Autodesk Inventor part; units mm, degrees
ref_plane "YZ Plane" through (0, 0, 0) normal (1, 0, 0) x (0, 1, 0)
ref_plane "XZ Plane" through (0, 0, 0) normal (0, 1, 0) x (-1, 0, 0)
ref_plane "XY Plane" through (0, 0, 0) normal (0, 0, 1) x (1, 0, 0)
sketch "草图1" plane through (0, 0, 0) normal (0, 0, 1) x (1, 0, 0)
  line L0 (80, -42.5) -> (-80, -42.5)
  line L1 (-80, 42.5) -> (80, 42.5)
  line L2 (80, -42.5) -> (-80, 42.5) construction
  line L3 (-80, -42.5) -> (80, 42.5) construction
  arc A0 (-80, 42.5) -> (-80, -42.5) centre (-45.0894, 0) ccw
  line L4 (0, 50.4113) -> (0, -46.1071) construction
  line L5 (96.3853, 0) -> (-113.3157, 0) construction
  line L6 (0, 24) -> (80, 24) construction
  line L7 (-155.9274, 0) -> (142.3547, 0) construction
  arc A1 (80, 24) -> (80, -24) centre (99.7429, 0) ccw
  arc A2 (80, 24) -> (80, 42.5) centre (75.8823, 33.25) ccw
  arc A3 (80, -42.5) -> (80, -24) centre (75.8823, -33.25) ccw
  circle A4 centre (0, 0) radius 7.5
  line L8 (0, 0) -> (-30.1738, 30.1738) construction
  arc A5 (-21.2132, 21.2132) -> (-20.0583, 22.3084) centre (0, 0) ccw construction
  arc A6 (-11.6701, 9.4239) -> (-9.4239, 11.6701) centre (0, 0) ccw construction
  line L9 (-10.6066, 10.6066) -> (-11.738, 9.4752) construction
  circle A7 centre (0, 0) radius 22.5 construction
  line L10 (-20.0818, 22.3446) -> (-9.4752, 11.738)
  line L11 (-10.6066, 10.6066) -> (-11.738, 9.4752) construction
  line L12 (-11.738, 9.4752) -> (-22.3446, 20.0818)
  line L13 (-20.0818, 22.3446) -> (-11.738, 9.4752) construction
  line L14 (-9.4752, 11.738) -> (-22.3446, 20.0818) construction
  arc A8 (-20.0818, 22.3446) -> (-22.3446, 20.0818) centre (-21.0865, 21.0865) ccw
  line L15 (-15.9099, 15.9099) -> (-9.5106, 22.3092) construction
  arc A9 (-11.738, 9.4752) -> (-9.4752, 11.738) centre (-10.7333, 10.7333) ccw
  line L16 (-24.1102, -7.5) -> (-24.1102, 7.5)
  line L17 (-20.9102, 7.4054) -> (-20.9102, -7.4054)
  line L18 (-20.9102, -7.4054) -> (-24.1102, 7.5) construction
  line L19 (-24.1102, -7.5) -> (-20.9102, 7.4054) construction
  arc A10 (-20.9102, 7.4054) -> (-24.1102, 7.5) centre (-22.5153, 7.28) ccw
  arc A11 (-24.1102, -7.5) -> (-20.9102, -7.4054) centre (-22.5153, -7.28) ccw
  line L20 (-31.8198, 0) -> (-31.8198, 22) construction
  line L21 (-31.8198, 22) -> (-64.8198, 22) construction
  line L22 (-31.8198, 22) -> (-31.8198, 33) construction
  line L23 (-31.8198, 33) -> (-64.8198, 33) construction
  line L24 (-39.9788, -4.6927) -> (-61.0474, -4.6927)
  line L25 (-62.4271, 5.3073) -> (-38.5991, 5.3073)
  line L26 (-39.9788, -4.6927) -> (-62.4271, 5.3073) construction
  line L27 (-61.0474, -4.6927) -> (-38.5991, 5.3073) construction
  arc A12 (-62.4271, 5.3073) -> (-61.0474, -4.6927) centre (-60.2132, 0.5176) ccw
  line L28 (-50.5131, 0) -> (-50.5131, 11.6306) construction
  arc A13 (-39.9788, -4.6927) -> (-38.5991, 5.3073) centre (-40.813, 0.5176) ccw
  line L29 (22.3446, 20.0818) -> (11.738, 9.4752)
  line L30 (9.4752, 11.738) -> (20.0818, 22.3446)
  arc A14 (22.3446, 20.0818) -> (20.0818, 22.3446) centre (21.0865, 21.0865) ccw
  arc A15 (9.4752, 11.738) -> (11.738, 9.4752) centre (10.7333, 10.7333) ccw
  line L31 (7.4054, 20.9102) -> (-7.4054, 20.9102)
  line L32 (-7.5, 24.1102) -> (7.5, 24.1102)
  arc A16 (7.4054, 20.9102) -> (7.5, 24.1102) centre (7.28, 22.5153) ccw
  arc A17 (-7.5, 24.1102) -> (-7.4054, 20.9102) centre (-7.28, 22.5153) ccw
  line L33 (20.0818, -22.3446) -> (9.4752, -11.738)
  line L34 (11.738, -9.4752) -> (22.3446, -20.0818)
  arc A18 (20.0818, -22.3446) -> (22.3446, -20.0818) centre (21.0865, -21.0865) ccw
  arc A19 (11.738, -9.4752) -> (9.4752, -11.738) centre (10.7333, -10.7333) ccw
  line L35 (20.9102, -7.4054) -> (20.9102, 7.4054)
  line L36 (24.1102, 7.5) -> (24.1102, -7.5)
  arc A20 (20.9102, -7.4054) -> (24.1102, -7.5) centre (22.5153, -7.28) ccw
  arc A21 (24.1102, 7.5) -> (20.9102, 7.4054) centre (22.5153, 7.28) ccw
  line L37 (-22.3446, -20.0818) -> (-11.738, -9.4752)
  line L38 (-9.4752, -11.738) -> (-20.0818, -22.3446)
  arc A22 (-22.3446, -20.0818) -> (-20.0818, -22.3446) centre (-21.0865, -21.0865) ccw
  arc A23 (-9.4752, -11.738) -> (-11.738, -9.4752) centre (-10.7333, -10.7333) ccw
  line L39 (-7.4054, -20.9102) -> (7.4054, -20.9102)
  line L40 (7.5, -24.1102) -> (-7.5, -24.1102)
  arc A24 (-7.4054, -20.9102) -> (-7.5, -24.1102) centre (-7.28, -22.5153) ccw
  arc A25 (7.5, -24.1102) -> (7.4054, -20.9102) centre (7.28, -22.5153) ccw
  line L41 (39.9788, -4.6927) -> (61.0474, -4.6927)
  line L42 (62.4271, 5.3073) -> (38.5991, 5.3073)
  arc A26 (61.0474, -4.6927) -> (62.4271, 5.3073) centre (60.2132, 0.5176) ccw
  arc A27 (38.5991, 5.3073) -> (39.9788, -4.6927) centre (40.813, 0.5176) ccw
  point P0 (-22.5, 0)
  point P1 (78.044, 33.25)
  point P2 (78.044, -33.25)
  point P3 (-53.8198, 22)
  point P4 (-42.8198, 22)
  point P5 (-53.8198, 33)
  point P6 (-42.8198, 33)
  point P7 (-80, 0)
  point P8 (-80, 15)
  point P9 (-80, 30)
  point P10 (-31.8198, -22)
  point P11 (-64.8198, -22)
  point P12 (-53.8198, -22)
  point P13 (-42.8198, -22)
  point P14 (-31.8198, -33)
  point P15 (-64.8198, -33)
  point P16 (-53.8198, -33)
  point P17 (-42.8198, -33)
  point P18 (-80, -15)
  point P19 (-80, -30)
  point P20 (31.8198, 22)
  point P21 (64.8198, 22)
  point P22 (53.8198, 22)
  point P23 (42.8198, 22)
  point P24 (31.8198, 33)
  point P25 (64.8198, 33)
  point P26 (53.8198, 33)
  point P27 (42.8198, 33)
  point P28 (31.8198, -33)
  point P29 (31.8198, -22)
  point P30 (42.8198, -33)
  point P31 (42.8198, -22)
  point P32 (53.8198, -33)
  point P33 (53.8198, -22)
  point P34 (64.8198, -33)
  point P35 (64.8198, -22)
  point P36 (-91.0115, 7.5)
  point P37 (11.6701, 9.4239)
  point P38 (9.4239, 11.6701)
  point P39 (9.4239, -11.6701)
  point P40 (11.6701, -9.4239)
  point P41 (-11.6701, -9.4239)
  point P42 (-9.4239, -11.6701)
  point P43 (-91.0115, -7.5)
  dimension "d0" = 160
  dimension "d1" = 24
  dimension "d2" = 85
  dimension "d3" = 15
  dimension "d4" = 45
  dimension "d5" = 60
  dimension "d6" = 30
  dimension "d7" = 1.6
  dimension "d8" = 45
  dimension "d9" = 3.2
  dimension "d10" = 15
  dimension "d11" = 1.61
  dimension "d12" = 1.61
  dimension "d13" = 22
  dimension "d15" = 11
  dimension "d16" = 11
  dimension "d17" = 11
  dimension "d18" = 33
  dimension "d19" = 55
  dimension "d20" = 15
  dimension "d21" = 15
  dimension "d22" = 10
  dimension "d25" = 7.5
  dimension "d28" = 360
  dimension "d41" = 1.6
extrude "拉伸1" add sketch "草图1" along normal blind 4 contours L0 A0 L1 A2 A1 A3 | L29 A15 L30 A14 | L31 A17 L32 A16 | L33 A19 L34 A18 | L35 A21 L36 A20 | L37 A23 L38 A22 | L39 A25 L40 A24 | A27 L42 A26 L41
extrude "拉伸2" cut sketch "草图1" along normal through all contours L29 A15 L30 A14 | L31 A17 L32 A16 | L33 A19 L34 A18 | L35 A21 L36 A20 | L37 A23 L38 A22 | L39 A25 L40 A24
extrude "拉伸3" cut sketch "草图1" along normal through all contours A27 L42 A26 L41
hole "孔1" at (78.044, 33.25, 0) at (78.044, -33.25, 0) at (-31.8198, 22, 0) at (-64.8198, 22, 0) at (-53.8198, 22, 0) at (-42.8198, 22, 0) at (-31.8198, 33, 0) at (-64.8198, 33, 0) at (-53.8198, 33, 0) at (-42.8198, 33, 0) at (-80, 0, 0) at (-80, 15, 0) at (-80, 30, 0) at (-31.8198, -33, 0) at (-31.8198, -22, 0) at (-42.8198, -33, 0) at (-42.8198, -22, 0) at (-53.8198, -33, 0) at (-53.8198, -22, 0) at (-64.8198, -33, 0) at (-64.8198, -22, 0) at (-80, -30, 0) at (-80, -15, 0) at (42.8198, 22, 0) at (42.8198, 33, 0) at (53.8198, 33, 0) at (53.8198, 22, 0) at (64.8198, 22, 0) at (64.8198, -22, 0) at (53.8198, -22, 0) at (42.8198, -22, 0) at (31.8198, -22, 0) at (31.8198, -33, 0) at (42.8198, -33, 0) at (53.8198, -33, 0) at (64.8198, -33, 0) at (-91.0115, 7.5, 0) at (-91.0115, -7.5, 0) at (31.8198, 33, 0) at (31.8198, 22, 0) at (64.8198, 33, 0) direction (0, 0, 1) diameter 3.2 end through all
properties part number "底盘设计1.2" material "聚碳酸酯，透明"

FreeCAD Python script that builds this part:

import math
import FreeCAD as App
import Part
import Sketcher

V = App.Vector
Q = App.Units.Quantity

doc = App.newDocument("Part")
params = doc.addObject("Spreadsheet::Sheet", "Params")
for row, (alias, value) in enumerate([
    ("sketch1_diameter", "15 mm"),
    ("sketch1_radius", "55 mm"),
    ("sketch1_width", "160 mm"),
    ("sketch1_height", "15 mm"),
    ("sketch1_radius2", "1.61 mm"),
    ("pad1_length", "4 mm"),
    ("sketch2_width", "15 mm"),
    ("sketch2_radius", "1.61 mm"),
    ("sketch2_length", "15 mm"),
    ("sketch4_diameter", "3.2 mm"),
    ("hole_diameter", "3.2 mm"),
], start=1):
    params.set(f"A{row}", alias)
    params.set(f"B{row}", "=" + value)
    params.setAlias(f"B{row}", alias)

body = doc.addObject("PartDesign::Body", "Body")

# Sketch on XY plane
sketch1 = body.newObject("Sketcher::SketchObject", "Sketch")
sketch1.AttachmentSupport = (doc.getObject("XY_Plane"), [""])
sketch1.MapMode = "FlatFace"
sketch1.addGeometry(Part.LineSegment(V(-80, -42.5, 0), V(80, -42.5, 0)), False)
sketch1.addGeometry(Part.ArcOfCircle(Part.Circle(V(75.9, -33.2, 0), V(0, 0, 1), 10.1), math.radians(-66), math.radians(66)), False)
sketch1.addGeometry(Part.ArcOfCircle(Part.Circle(V(99.7, 0, 0), V(0, 0, 1), 31.1), math.radians(129), math.radians(231)), False)
sketch1.addGeometry(Part.ArcOfCircle(Part.Circle(V(75.9, 33.2, 0), V(0, 0, 1), 10.1), math.radians(-66), math.radians(66)), False)
sketch1.addGeometry(Part.LineSegment(V(80, 42.5, 0), V(-80, 42.5, 0)), False)
sketch1.addGeometry(Part.ArcOfCircle(Part.Circle(V(-45.1, 0, 0), V(0, 0, 1), 55), math.radians(129), math.radians(231)), False)
sketch1.addGeometry(Part.ArcOfCircle(Part.Circle(V(-22.5, -7.3, 0), V(0, 0, 1), 1.6), math.radians(-172), math.radians(-4)), False)
sketch1.addGeometry(Part.LineSegment(V(-24.1, -7.5, 0), V(-24.1, 7.5, 0)), False)
sketch1.addGeometry(Part.ArcOfCircle(Part.Circle(V(-22.5, 7.3, 0), V(0, 0, 1), 1.6), math.radians(4), math.radians(172)), False)
sketch1.addGeometry(Part.LineSegment(V(-20.9, 7.4, 0), V(-20.9, -7.4, 0)), False)
sketch1.addGeometry(Part.ArcOfCircle(Part.Circle(V(-40.8, 0.5, 0), V(0, 0, 1), 5.3), math.radians(-81), math.radians(65)), False)
sketch1.addGeometry(Part.LineSegment(V(-40, -4.7, 0), V(-61, -4.7, 0)), False)
sketch1.addGeometry(Part.ArcOfCircle(Part.Circle(V(-60.2, 0.5, 0), V(0, 0, 1), 5.3), math.radians(115), math.radians(261)), False)
sketch1.addGeometry(Part.LineSegment(V(-62.4, 5.3, 0), V(-38.6, 5.3, 0)), False)
sketch1.addGeometry(Part.ArcOfCircle(Part.Circle(V(-21.1, 21.1, 0), V(0, 0, 1), 1.6), math.radians(51), math.radians(219)), False)
sketch1.addGeometry(Part.LineSegment(V(-20.1, 22.3, 0), V(-9.5, 11.7, 0)), False)
sketch1.addGeometry(Part.ArcOfCircle(Part.Circle(V(-10.7, 10.7, 0), V(0, 0, 1), 1.6), math.radians(-129), math.radians(39)), False)
sketch1.addGeometry(Part.LineSegment(V(-11.7, 9.5, 0), V(-22.3, 20.1, 0)), False)
sketch1.addGeometry(Part.Circle(V(0, 0, 0), V(0, 0, 1), 7.5), False)
sketch1.addConstraint(Sketcher.Constraint("Coincident", 0, 2, 1, 1))
sketch1.addConstraint(Sketcher.Constraint("Coincident", 1, 2, 2, 2))
sketch1.addConstraint(Sketcher.Constraint("Coincident", 2, 1, 3, 1))
sketch1.addConstraint(Sketcher.Constraint("Coincident", 3, 2, 4, 1))
sketch1.addConstraint(Sketcher.Constraint("Coincident", 4, 2, 5, 1))
sketch1.addConstraint(Sketcher.Constraint("Coincident", 5, 2, 0, 1))
sketch1.addConstraint(Sketcher.Constraint("Coincident", 6, 1, 7, 1))
sketch1.addConstraint(Sketcher.Constraint("Coincident", 7, 2, 8, 2))
sketch1.addConstraint(Sketcher.Constraint("Coincident", 8, 1, 9, 1))
sketch1.addConstraint(Sketcher.Constraint("Coincident", 9, 2, 6, 2))
sketch1.addConstraint(Sketcher.Constraint("Coincident", 10, 1, 11, 1))
sketch1.addConstraint(Sketcher.Constraint("Coincident", 11, 2, 12, 2))
sketch1.addConstraint(Sketcher.Constraint("Coincident", 12, 1, 13, 1))
sketch1.addConstraint(Sketcher.Constraint("Coincident", 13, 2, 10, 2))
sketch1.addConstraint(Sketcher.Constraint("Coincident", 14, 1, 15, 1))
sketch1.addConstraint(Sketcher.Constraint("Coincident", 15, 2, 16, 2))
sketch1.addConstraint(Sketcher.Constraint("Coincident", 16, 1, 17, 1))
sketch1.addConstraint(Sketcher.Constraint("Coincident", 17, 2, 14, 2))
sketch1.addConstraint(Sketcher.Constraint("Horizontal", 0))
sketch1.addConstraint(Sketcher.Constraint("Horizontal", 4))
sketch1.addConstraint(Sketcher.Constraint("Vertical", 7))
sketch1.addConstraint(Sketcher.Constraint("Vertical", 9))
sketch1.addConstraint(Sketcher.Constraint("Horizontal", 11))
sketch1.addConstraint(Sketcher.Constraint("Horizontal", 13))
sketch1.addConstraint(Sketcher.Constraint("Coincident", 18, 3, -1, 1))
sketch1.addConstraint(Sketcher.Constraint("Equal", 1, 3))
sketch1.addConstraint(Sketcher.Constraint("Equal", 6, 8))
sketch1.addConstraint(Sketcher.Constraint("Equal", 10, 12))
sketch1.addConstraint(Sketcher.Constraint("Equal", 8, 14))
sketch1.addConstraint(Sketcher.Constraint("Equal", 14, 16))
sketch1.addConstraint(Sketcher.Constraint("Symmetric", 0, 2, 4, 2, -1, 1))
sketch1.addConstraint(Sketcher.Constraint("Symmetric", 1, 3, 3, 3, -1))
sketch1.addConstraint(Sketcher.Constraint("Symmetric", 6, 3, 8, 3, -1))
sketch1.addConstraint(Sketcher.Constraint("PointOnObject", 2, 3, -1))
sketch1.addConstraint(Sketcher.Constraint("PointOnObject", 5, 3, -1))
sketch1.addConstraint(Sketcher.Constraint("Parallel", 15, 17))
sketch1.addConstraint(Sketcher.Constraint("Horizontal", 10, 3, 12, 3))
sketch1.addConstraint(Sketcher.Constraint("Vertical", 0, 2, 1, 2))
sketch1.addConstraint(Sketcher.Constraint("Equal", 15, 17))
sketch1.addConstraint(Sketcher.Constraint("Diameter", 18, Q("15 mm")))
sketch1.addConstraint(Sketcher.Constraint("Radius", 5, Q("55 mm")))
sketch1.addConstraint(Sketcher.Constraint("DistanceX", 0, 1, 0, 2, Q("160 mm")))
sketch1.addConstraint(Sketcher.Constraint("DistanceY", 7, 1, 7, 2, Q("15 mm")))
sketch1.addConstraint(Sketcher.Constraint("Angle", 15, Q("-45 deg")))
sketch1.addConstraint(Sketcher.Constraint("Radius", 6, Q("1.61 mm")))
sketch1.addConstraint(Sketcher.Constraint("Distance", 15, Q("15 mm")))
sketch1.addConstraint(Sketcher.Constraint("DistanceY", 1, 2, -1, 1, Q("24 mm")))
sketch1.addConstraint(Sketcher.Constraint("DistanceY", 11, 2, 12, 1, Q("10 mm")))
sketch1.addConstraint(Sketcher.Constraint("DistanceX", 7, 2, 8, 1, Q("3.2 mm")))
sketch1.addConstraint(Sketcher.Constraint("Radius", 1, Q("10.125 mm")))
sketch1.addConstraint(Sketcher.Constraint("Radius", 2, Q("31.077 mm")))
sketch1.addConstraint(Sketcher.Constraint("DistanceY", 0, 2, -1, 1, Q("42.5 mm")))
sketch1.addConstraint(Sketcher.Constraint("Radius", 10, Q("5.2767 mm")))
sketch1.addConstraint(Sketcher.Constraint("DistanceX", 13, 1, 13, 2, Q("23.828 mm")))
sketch1.addConstraint(Sketcher.Constraint("DistanceY", 6, 3, -1, 1, Q("7.28 mm")))
sketch1.addConstraint(Sketcher.Constraint("DistanceX", 8, 3, 15, 2, Q("13.04 mm")))
sketch1.addConstraint(Sketcher.Constraint("DistanceX", 11, 2, 11, 1, Q("21.0686 mm")))
sketch1.addConstraint(Sketcher.Constraint("DistanceX", 10, 3, -1, 1, Q("40.813 mm")))
sketch1.addConstraint(Sketcher.Constraint("DistanceY", -1, 1, 15, 2, Q("11.738 mm")))
sketch1.addConstraint(Sketcher.Constraint("DistanceX", 16, 1, -1, 1, Q("11.738 mm")))
sketch1.addConstraint(Sketcher.Constraint("DistanceX", 5, 3, 6, 3, Q("22.574 mm")))
sketch1.addConstraint(Sketcher.Constraint("DistanceY", 10, 3, 14, 3, Q("20.569 mm")))
sketch1.addConstraint(Sketcher.Constraint("DistanceX", 5, 3, 14, 3, Q("24.003 mm")))
sketch1.setExpression("Constraints[39]", "Params.sketch1_diameter")
sketch1.setExpression("Constraints[40]", "Params.sketch1_radius")
sketch1.setExpression("Constraints[41]", "Params.sketch1_width")
sketch1.setExpression("Constraints[42]", "Params.sketch1_height")
sketch1.setExpression("Constraints[44]", "Params.sketch1_radius2")
pad1 = body.newObject("PartDesign::Pad", "Pad")
pad1.Profile = sketch1
pad1.setExpression("Length", "Params.pad1_length")

# Sketch on XY plane
sketch2 = body.newObject("Sketcher::SketchObject", "Sketch001")
sketch2.AttachmentSupport = (doc.getObject("XY_Plane"), [""])
sketch2.MapMode = "FlatFace"
sketch2.addGeometry(Part.LineSegment(V(11.7, 9.5, 0), V(22.3, 20.1, 0)), False)
sketch2.addGeometry(Part.ArcOfCircle(Part.Circle(V(21.1, 21.1, 0), V(0, 0, 1), 1.6), math.radians(-39), math.radians(129)), False)
sketch2.addGeometry(Part.LineSegment(V(20.1, 22.3, 0), V(9.5, 11.7, 0)), False)
sketch2.addGeometry(Part.ArcOfCircle(Part.Circle(V(10.7, 10.7, 0), V(0, 0, 1), 1.6), math.radians(141), math.radians(309)), False)
sketch2.addGeometry(Part.LineSegment(V(-7.4, 20.9, 0), V(7.4, 20.9, 0)), False)
sketch2.addGeometry(Part.ArcOfCircle(Part.Circle(V(7.3, 22.5, 0), V(0, 0, 1), 1.6), math.radians(-86), math.radians(82)), False)
sketch2.addGeometry(Part.LineSegment(V(7.5, 24.1, 0), V(-7.5, 24.1, 0)), False)
sketch2.addGeometry(Part.ArcOfCircle(Part.Circle(V(-7.3, 22.5, 0), V(0, 0, 1), 1.6), math.radians(98), math.radians(266)), False)
sketch2.addGeometry(Part.LineSegment(V(9.5, -11.7, 0), V(20.1, -22.3, 0)), False)
sketch2.addGeometry(Part.ArcOfCircle(Part.Circle(V(21.1, -21.1, 0), V(0, 0, 1), 1.6), math.radians(-129), math.radians(39)), False)
sketch2.addGeometry(Part.LineSegment(V(22.3, -20.1, 0), V(11.7, -9.5, 0)), False)
sketch2.addGeometry(Part.ArcOfCircle(Part.Circle(V(10.7, -10.7, 0), V(0, 0, 1), 1.6), math.radians(51), math.radians(219)), False)
sketch2.addGeometry(Part.LineSegment(V(20.9, 7.4, 0), V(20.9, -7.4, 0)), False)
sketch2.addGeometry(Part.ArcOfCircle(Part.Circle(V(22.5, -7.3, 0), V(0, 0, 1), 1.6), math.radians(-176), math.radians(-8)), False)
sketch2.addGeometry(Part.LineSegment(V(24.1, -7.5, 0), V(24.1, 7.5, 0)), False)
sketch2.addGeometry(Part.ArcOfCircle(Part.Circle(V(22.5, 7.3, 0), V(0, 0, 1), 1.6), math.radians(8), math.radians(176)), False)
sketch2.addGeometry(Part.LineSegment(V(-11.7, -9.5, 0), V(-22.3, -20.1, 0)), False)
sketch2.addGeometry(Part.ArcOfCircle(Part.Circle(V(-21.1, -21.1, 0), V(0, 0, 1), 1.6), math.radians(141), math.radians(309)), False)
sketch2.addGeometry(Part.LineSegment(V(-20.1, -22.3, 0), V(-9.5, -11.7, 0)), False)
sketch2.addGeometry(Part.ArcOfCircle(Part.Circle(V(-10.7, -10.7, 0), V(0, 0, 1), 1.6), math.radians(-39), math.radians(129)), False)
sketch2.addGeometry(Part.LineSegment(V(7.4, -20.9, 0), V(-7.4, -20.9, 0)), False)
sketch2.addGeometry(Part.ArcOfCircle(Part.Circle(V(-7.3, -22.5, 0), V(0, 0, 1), 1.6), math.radians(94), math.radians(262)), False)
sketch2.addGeometry(Part.LineSegment(V(-7.5, -24.1, 0), V(7.5, -24.1, 0)), False)
sketch2.addGeometry(Part.ArcOfCircle(Part.Circle(V(7.3, -22.5, 0), V(0, 0, 1), 1.6), math.radians(-82), math.radians(86)), False)
sketch2.addConstraint(Sketcher.Constraint("Coincident", 0, 2, 1, 1))
sketch2.addConstraint(Sketcher.Constraint("Coincident", 1, 2, 2, 1))
sketch2.addConstraint(Sketcher.Constraint("Coincident", 2, 2, 3, 1))
sketch2.addConstraint(Sketcher.Constraint("Coincident", 3, 2, 0, 1))
sketch2.addConstraint(Sketcher.Constraint("Coincident", 4, 2, 5, 1))
sketch2.addConstraint(Sketcher.Constraint("Coincident", 5, 2, 6, 1))
sketch2.addConstraint(Sketcher.Constraint("Coincident", 6, 2, 7, 1))
sketch2.addConstraint(Sketcher.Constraint("Coincident", 7, 2, 4, 1))
sketch2.addConstraint(Sketcher.Constraint("Coincident", 8, 2, 9, 1))
sketch2.addConstraint(Sketcher.Constraint("Coincident", 9, 2, 10, 1))
sketch2.addConstraint(Sketcher.Constraint("Coincident", 10, 2, 11, 1))
sketch2.addConstraint(Sketcher.Constraint("Coincident", 11, 2, 8, 1))
sketch2.addConstraint(Sketcher.Constraint("Coincident", 12, 2, 13, 1))
sketch2.addConstraint(Sketcher.Constraint("Coincident", 13, 2, 14, 1))
sketch2.addConstraint(Sketcher.Constraint("Coincident", 14, 2, 15, 1))
sketch2.addConstraint(Sketcher.Constraint("Coincident", 15, 2, 12, 1))
sketch2.addConstraint(Sketcher.Constraint("Coincident", 16, 2, 17, 1))
sketch2.addConstraint(Sketcher.Constraint("Coincident", 17, 2, 18, 1))
sketch2.addConstraint(Sketcher.Constraint("Coincident", 18, 2, 19, 1))
sketch2.addConstraint(Sketcher.Constraint("Coincident", 19, 2, 16, 1))
sketch2.addConstraint(Sketcher.Constraint("Coincident", 20, 2, 21, 1))
sketch2.addConstraint(Sketcher.Constraint("Coincident", 21, 2, 22, 1))
sketch2.addConstraint(Sketcher.Constraint("Coincident", 22, 2, 23, 1))
sketch2.addConstraint(Sketcher.Constraint("Coincident", 23, 2, 20, 1))
sketch2.addConstraint(Sketcher.Constraint("Horizontal", 4))
sketch2.addConstraint(Sketcher.Constraint("Horizontal", 6))
sketch2.addConstraint(Sketcher.Constraint("Vertical", 12))
sketch2.addConstraint(Sketcher.Constraint("Vertical", 14))
sketch2.addConstraint(Sketcher.Constraint("Horizontal", 20))
sketch2.addConstraint(Sketcher.Constraint("Horizontal", 22))
sketch2.addConstraint(Sketcher.Constraint("Equal", 1, 3))
sketch2.addConstraint(Sketcher.Constraint("Equal", 3, 5))
sketch2.addConstraint(Sketcher.Constraint("Equal", 5, 7))
sketch2.addConstraint(Sketcher.Constraint("Equal", 7, 9))
sketch2.addConstraint(Sketcher.Constraint("Equal", 9, 11))
sketch2.addConstraint(Sketcher.Constraint("Equal", 11, 13))
sketch2.addConstraint(Sketcher.Constraint("Equal", 13, 15))
sketch2.addConstraint(Sketcher.Constraint("Equal", 15, 17))
sketch2.addConstraint(Sketcher.Constraint("Equal", 17, 19))
sketch2.addConstraint(Sketcher.Constraint("Equal", 19, 21))
sketch2.addConstraint(Sketcher.Constraint("Equal", 21, 23))
sketch2.addConstraint(Sketcher.Constraint("Symmetric", 1, 3, 17, 3, -1, 1))
sketch2.addConstraint(Sketcher.Constraint("Symmetric", 3, 3, 19, 3, -1, 1))
sketch2.addConstraint(Sketcher.Constraint("Symmetric", 5, 3, 21, 3, -1, 1))
sketch2.addConstraint(Sketcher.Constraint("Symmetric", 7, 3, 23, 3, -1, 1))
sketch2.addConstraint(Sketcher.Constraint("Symmetric", 5, 3, 7, 3, -2))
sketch2.addConstraint(Sketcher.Constraint("Symmetric", 9, 3, 17, 3, -2))
sketch2.addConstraint(Sketcher.Constraint("Symmetric", 11, 3, 19, 3, -2))
sketch2.addConstraint(Sketcher.Constraint("Symmetric", 13, 3, 15, 3, -1))
sketch2.addConstraint(Sketcher.Constraint("Parallel", 0, 2))
sketch2.addConstraint(Sketcher.Constraint("Perpendicular", 2, 8))
sketch2.addConstraint(Sketcher.Constraint("Parallel", 8, 10))
sketch2.addConstraint(Sketcher.Constraint("Perpendicular", 10, 16))
sketch2.addConstraint(Sketcher.Constraint("Parallel", 16, 18))
sketch2.addConstraint(Sketcher.Constraint("Horizontal", 9, 2, 16, 2))
sketch2.addConstraint(Sketcher.Constraint("Horizontal", 8, 2, 17, 2))
sketch2.addConstraint(Sketcher.Constraint("Horizontal", 11, 2, 18, 2))
sketch2.addConstraint(Sketcher.Constraint("Vertical", 1, 2, 8, 2))
sketch2.addConstraint(Sketcher.Constraint("Vertical", 0, 2, 9, 2))
sketch2.addConstraint(Sketcher.Constraint("Vertical", 7, 2, 20, 2))
sketch2.addConstraint(Sketcher.Constraint("Vertical", 6, 2, 21, 2))
sketch2.addConstraint(Sketcher.Constraint("Equal", 20, 12))
sketch2.addConstraint(Sketcher.Constraint("Equal", 22, 14))
sketch2.addConstraint(Sketcher.Constraint("Equal", 0, 2))
sketch2.addConstraint(Sketcher.Constraint("DistanceX", 6, 2, 6, 1, Q("15 mm")))
sketch2.addConstraint(Sketcher.Constraint("Radius", 1, Q("1.61 mm")))
sketch2.addConstraint(Sketcher.Constraint("Distance", 0, Q("15 mm")))
sketch2.addConstraint(Sketcher.Constraint("DistanceY", 4, 2, 5, 2, Q("3.2 mm")))
sketch2.addConstraint(Sketcher.Constraint("DistanceX", 12, 2, 13, 2, Q("3.2 mm")))
sketch2.addConstraint(Sketcher.Constraint("DistanceX", -1, 1, 5, 3, Q("7.28 mm")))
sketch2.addConstraint(Sketcher.Constraint("DistanceX", 2, 2, 15, 3, Q("13.04 mm")))
sketch2.addConstraint(Sketcher.Constraint("DistanceY", 3, 2, 5, 3, Q("13.04 mm")))
sketch2.addConstraint(Sketcher.Constraint("DistanceY", -1, 1, 2, 2, Q("11.738 mm")))
sketch2.addConstraint(Sketcher.Constraint("DistanceX", -1, 1, 3, 2, Q("11.738 mm")))
sketch2.addConstraint(Sketcher.Constraint("DistanceY", 3, 3, 5, 3, Q("11.782 mm")))
sketch2.addConstraint(Sketcher.Constraint("DistanceX", 11, 3, 13, 3, Q("11.782 mm")))
sketch2.setExpression("Constraints[64]", "Params.sketch2_width")
sketch2.setExpression("Constraints[65]", "Params.sketch2_radius")
sketch2.setExpression("Constraints[66]", "Params.sketch2_length")
pocket1 = body.newObject("PartDesign::Pocket", "Pocket")
pocket1.Profile = sketch2
pocket1.Type = "ThroughAll"
pocket1.Reversed = True

# Sketch on XY plane
sketch3 = body.newObject("Sketcher::SketchObject", "Sketch002")
sketch3.AttachmentSupport = (doc.getObject("XY_Plane"), [""])
sketch3.MapMode = "FlatFace"
sketch3.addGeometry(Part.ArcOfCircle(Part.Circle(V(41, 1, 0), V(0, 0, 1), 5), math.radians(115), math.radians(261)), False)
sketch3.addGeometry(Part.LineSegment(V(40, -5, 0), V(61, -5, 0)), False)
sketch3.addGeometry(Part.ArcOfCircle(Part.Circle(V(60, 1, 0), V(0, 0, 1), 5), math.radians(-81), math.radians(65)), False)
sketch3.addGeometry(Part.LineSegment(V(62, 5, 0), V(39, 5, 0)), False)
sketch3.addConstraint(Sketcher.Constraint("Coincident", 0, 2, 1, 1))
sketch3.addConstraint(Sketcher.Constraint("Coincident", 1, 2, 2, 1))
sketch3.addConstraint(Sketcher.Constraint("Coincident", 2, 2, 3, 1))
sketch3.addConstraint(Sketcher.Constraint("Coincident", 3, 2, 0, 1))
sketch3.addConstraint(Sketcher.Constraint("Horizontal", 1))
sketch3.addConstraint(Sketcher.Constraint("Horizontal", 3))
sketch3.addConstraint(Sketcher.Constraint("Equal", 0, 2))
sketch3.addConstraint(Sketcher.Constraint("Horizontal", 0, 3, 2, 3))
sketch3.addConstraint(Sketcher.Constraint("DistanceY", 1, 2, 2, 2, Q("10 mm")))
sketch3.addConstraint(Sketcher.Constraint("Radius", 0, Q("5.2766 mm")))
sketch3.addConstraint(Sketcher.Constraint("DistanceX", 3, 2, 3, 1, Q("23.828 mm")))
sketch3.addConstraint(Sketcher.Constraint("DistanceX", 1, 1, 1, 2, Q("21.0686 mm")))
sketch3.addConstraint(Sketcher.Constraint("DistanceX", -1, 1, 0, 3, Q("40.813 mm")))
sketch3.addConstraint(Sketcher.Constraint("DistanceY", -1, 1, 0, 3, Q("0.5176 mm")))
pocket2 = body.newObject("PartDesign::Pocket", "Pocket001")
pocket2.Profile = sketch3
pocket2.Type = "ThroughAll"
pocket2.Reversed = True

# Sketch on XY plane
sketch4 = body.newObject("Sketcher::SketchObject", "Sketch003")
sketch4.AttachmentSupport = (doc.getObject("XY_Plane"), [""])
sketch4.MapMode = "FlatFace"
sketch4.addGeometry(Part.Circle(V(78, 33.2, 0), V(0, 0, 1), 1.6), False)
sketch4.addGeometry(Part.Circle(V(78, -33.2, 0), V(0, 0, 1), 1.6), False)
sketch4.addGeometry(Part.Circle(V(-31.8, 22, 0), V(0, 0, 1), 1.6), False)
sketch4.addGeometry(Part.Circle(V(-64.8, 22, 0), V(0, 0, 1), 1.6), False)
sketch4.addGeometry(Part.Circle(V(-53.8, 22, 0), V(0, 0, 1), 1.6), False)
sketch4.addGeometry(Part.Circle(V(-42.8, 22, 0), V(0, 0, 1), 1.6), False)
sketch4.addGeometry(Part.Circle(V(-31.8, 33, 0), V(0, 0, 1), 1.6), False)
sketch4.addGeometry(Part.Circle(V(-64.8, 33, 0), V(0, 0, 1), 1.6), False)
sketch4.addGeometry(Part.Circle(V(-53.8, 33, 0), V(0, 0, 1), 1.6), False)
sketch4.addGeometry(Part.Circle(V(-42.8, 33, 0), V(0, 0, 1), 1.6), False)
sketch4.addGeometry(Part.Circle(V(-80, 0, 0), V(0, 0, 1), 1.6), False)
sketch4.addGeometry(Part.Circle(V(-80, 15, 0), V(0, 0, 1), 1.6), False)
sketch4.addGeometry(Part.Circle(V(-80, 30, 0), V(0, 0, 1), 1.6), False)
sketch4.addGeometry(Part.Circle(V(-31.8, -33, 0), V(0, 0, 1), 1.6), False)
sketch4.addGeometry(Part.Circle(V(-31.8, -22, 0), V(0, 0, 1), 1.6), False)
sketch4.addGeometry(Part.Circle(V(-42.8, -33, 0), V(0, 0, 1), 1.6), False)
sketch4.addGeometry(Part.Circle(V(-42.8, -22, 0), V(0, 0, 1), 1.6), False)
sketch4.addGeometry(Part.Circle(V(-53.8, -33, 0), V(0, 0, 1), 1.6), False)
sketch4.addGeometry(Part.Circle(V(-53.8, -22, 0), V(0, 0, 1), 1.6), False)
sketch4.addGeometry(Part.Circle(V(-64.8, -33, 0), V(0, 0, 1), 1.6), False)
sketch4.addGeometry(Part.Circle(V(-64.8, -22, 0), V(0, 0, 1), 1.6), False)
sketch4.addGeometry(Part.Circle(V(-80, -30, 0), V(0, 0, 1), 1.6), False)
sketch4.addGeometry(Part.Circle(V(-80, -15, 0), V(0, 0, 1), 1.6), False)
sketch4.addGeometry(Part.Circle(V(42.8, 22, 0), V(0, 0, 1), 1.6), False)
sketch4.addGeometry(Part.Circle(V(42.8, 33, 0), V(0, 0, 1), 1.6), False)
sketch4.addGeometry(Part.Circle(V(53.8, 33, 0), V(0, 0, 1), 1.6), False)
sketch4.addGeometry(Part.Circle(V(53.8, 22, 0), V(0, 0, 1), 1.6), False)
sketch4.addGeometry(Part.Circle(V(64.8, 22, 0), V(0, 0, 1), 1.6), False)
sketch4.addGeometry(Part.Circle(V(64.8, -22, 0), V(0, 0, 1), 1.6), False)
sketch4.addGeometry(Part.Circle(V(53.8, -22, 0), V(0, 0, 1), 1.6), False)
sketch4.addGeometry(Part.Circle(V(42.8, -22, 0), V(0, 0, 1), 1.6), False)
sketch4.addGeometry(Part.Circle(V(31.8, -22, 0), V(0, 0, 1), 1.6), False)
sketch4.addGeometry(Part.Circle(V(31.8, -33, 0), V(0, 0, 1), 1.6), False)
sketch4.addGeometry(Part.Circle(V(42.8, -33, 0), V(0, 0, 1), 1.6), False)
sketch4.addGeometry(Part.Circle(V(53.8, -33, 0), V(0, 0, 1), 1.6), False)
sketch4.addGeometry(Part.Circle(V(64.8, -33, 0), V(0, 0, 1), 1.6), False)
sketch4.addGeometry(Part.Circle(V(-91, 7.5, 0), V(0, 0, 1), 1.6), False)
sketch4.addGeometry(Part.Circle(V(-91, -7.5, 0), V(0, 0, 1), 1.6), False)
sketch4.addGeometry(Part.Circle(V(31.8, 33, 0), V(0, 0, 1), 1.6), False)
sketch4.addGeometry(Part.Circle(V(31.8, 22, 0), V(0, 0, 1), 1.6), False)
sketch4.addGeometry(Part.Circle(V(64.8, 33, 0), V(0, 0, 1), 1.6), False)
sketch4.addConstraint(Sketcher.Constraint("Equal", 0, 1))
sketch4.addConstraint(Sketcher.Constraint("Equal", 1, 2))
sketch4.addConstraint(Sketcher.Constraint("Equal", 2, 3))
sketch4.addConstraint(Sketcher.Constraint("Equal", 3, 4))
sketch4.addConstraint(Sketcher.Constraint("Equal", 4, 5))
sketch4.addConstraint(Sketcher.Constraint("Equal", 5, 6))
sketch4.addConstraint(Sketcher.Constraint("Equal", 6, 7))
sketch4.addConstraint(Sketcher.Constraint("Equal", 7, 8))
sketch4.addConstraint(Sketcher.Constraint("Equal", 8, 9))
sketch4.addConstraint(Sketcher.Constraint("Equal", 9, 10))
sketch4.addConstraint(Sketcher.Constraint("Equal", 10, 11))
sketch4.addConstraint(Sketcher.Constraint("Equal", 11, 12))
sketch4.addConstraint(Sketcher.Constraint("Equal", 12, 13))
sketch4.addConstraint(Sketcher.Constraint("Equal", 13, 14))
sketch4.addConstraint(Sketcher.Constraint("Equal", 14, 15))
sketch4.addConstraint(Sketcher.Constraint("Equal", 15, 16))
sketch4.addConstraint(Sketcher.Constraint("Equal", 16, 17))
sketch4.addConstraint(Sketcher.Constraint("Equal", 17, 18))
sketch4.addConstraint(Sketcher.Constraint("Equal", 18, 19))
sketch4.addConstraint(Sketcher.Constraint("Equal", 19, 20))
sketch4.addConstraint(Sketcher.Constraint("Equal", 20, 21))
sketch4.addConstraint(Sketcher.Constraint("Equal", 21, 22))
sketch4.addConstraint(Sketcher.Constraint("Equal", 22, 23))
sketch4.addConstraint(Sketcher.Constraint("Equal", 23, 24))
sketch4.addConstraint(Sketcher.Constraint("Equal", 24, 25))
sketch4.addConstraint(Sketcher.Constraint("Equal", 25, 26))
sketch4.addConstraint(Sketcher.Constraint("Equal", 26, 27))
sketch4.addConstraint(Sketcher.Constraint("Equal", 27, 28))
sketch4.addConstraint(Sketcher.Constraint("Equal", 28, 29))
sketch4.addConstraint(Sketcher.Constraint("Equal", 29, 30))
sketch4.addConstraint(Sketcher.Constraint("Equal", 30, 31))
sketch4.addConstraint(Sketcher.Constraint("Equal", 31, 32))
sketch4.addConstraint(Sketcher.Constraint("Equal", 32, 33))
sketch4.addConstraint(Sketcher.Constraint("Equal", 33, 34))
sketch4.addConstraint(Sketcher.Constraint("Equal", 34, 35))
sketch4.addConstraint(Sketcher.Constraint("Equal", 35, 36))
sketch4.addConstraint(Sketcher.Constraint("Equal", 36, 37))
sketch4.addConstraint(Sketcher.Constraint("Equal", 37, 38))
sketch4.addConstraint(Sketcher.Constraint("Equal", 38, 39))
sketch4.addConstraint(Sketcher.Constraint("Equal", 39, 40))
sketch4.addConstraint(Sketcher.Constraint("Symmetric", 16, 3, 23, 3, -1, 1))
sketch4.addConstraint(Sketcher.Constraint("Symmetric", 15, 3, 24, 3, -1, 1))
sketch4.addConstraint(Sketcher.Constraint("Symmetric", 17, 3, 25, 3, -1, 1))
sketch4.addConstraint(Sketcher.Constraint("Symmetric", 18, 3, 26, 3, -1, 1))
sketch4.addConstraint(Sketcher.Constraint("Symmetric", 20, 3, 27, 3, -1, 1))
sketch4.addConstraint(Sketcher.Constraint("Symmetric", 3, 3, 28, 3, -1, 1))
sketch4.addConstraint(Sketcher.Constraint("Symmetric", 4, 3, 29, 3, -1, 1))
sketch4.addConstraint(Sketcher.Constraint("Symmetric", 5, 3, 30, 3, -1, 1))
sketch4.addConstraint(Sketcher.Constraint("Symmetric", 2, 3, 31, 3, -1, 1))
sketch4.addConstraint(Sketcher.Constraint("Symmetric", 6, 3, 32, 3, -1, 1))
sketch4.addConstraint(Sketcher.Constraint("Symmetric", 9, 3, 33, 3, -1, 1))
sketch4.addConstraint(Sketcher.Constraint("Symmetric", 8, 3, 34, 3, -1, 1))
sketch4.addConstraint(Sketcher.Constraint("Symmetric", 7, 3, 35, 3, -1, 1))
sketch4.addConstraint(Sketcher.Constraint("Symmetric", 13, 3, 38, 3, -1, 1))
sketch4.addConstraint(Sketcher.Constraint("Symmetric", 14, 3, 39, 3, -1, 1))
sketch4.addConstraint(Sketcher.Constraint("Symmetric", 19, 3, 40, 3, -1, 1))
sketch4.addConstraint(Sketcher.Constraint("Symmetric", 5, 3, 23, 3, -2))
sketch4.addConstraint(Sketcher.Constraint("Symmetric", 9, 3, 24, 3, -2))
sketch4.addConstraint(Sketcher.Constraint("Symmetric", 8, 3, 25, 3, -2))
sketch4.addConstraint(Sketcher.Constraint("Symmetric", 4, 3, 26, 3, -2))
sketch4.addConstraint(Sketcher.Constraint("Symmetric", 3, 3, 27, 3, -2))
sketch4.addConstraint(Sketcher.Constraint("Symmetric", 14, 3, 31, 3, -2))
sketch4.addConstraint(Sketcher.Constraint("Symmetric", 13, 3, 32, 3, -2))
sketch4.addConstraint(Sketcher.Constraint("Symmetric", 19, 3, 35, 3, -2))
sketch4.addConstraint(Sketcher.Constraint("Symmetric", 0, 3, 1, 3, -1))
sketch4.addConstraint(Sketcher.Constraint("Symmetric", 12, 3, 21, 3, -1))
sketch4.addConstraint(Sketcher.Constraint("Symmetric", 11, 3, 22, 3, -1))
sketch4.addConstraint(Sketcher.Constraint("Symmetric", 36, 3, 37, 3, -1))
sketch4.addConstraint(Sketcher.Constraint("PointOnObject", 10, 3, -1))
sketch4.addConstraint(Sketcher.Constraint("Horizontal", 2, 3, 3, 3))
sketch4.addConstraint(Sketcher.Constraint("Horizontal", 3, 3, 4, 3))
sketch4.addConstraint(Sketcher.Constraint("Horizontal", 4, 3, 5, 3))
sketch4.addConstraint(Sketcher.Constraint("Horizontal", 6, 3, 7, 3))
sketch4.addConstraint(Sketcher.Constraint("Horizontal", 7, 3, 8, 3))
sketch4.addConstraint(Sketcher.Constraint("Horizontal", 8, 3, 9, 3))
sketch4.addConstraint(Sketcher.Constraint("Vertical", 2, 3, 6, 3))
sketch4.addConstraint(Sketcher.Constraint("Vertical", 3, 3, 7, 3))
sketch4.addConstraint(Sketcher.Constraint("Vertical", 4, 3, 8, 3))
sketch4.addConstraint(Sketcher.Constraint("Vertical", 5, 3, 9, 3))
sketch4.addConstraint(Sketcher.Constraint("Vertical", 10, 3, 11, 3))
sketch4.addConstraint(Sketcher.Constraint("Vertical", 11, 3, 12, 3))
sketch4.addConstraint(Sketcher.Constraint("Diameter", 0, Q("3.2 mm")))
sketch4.addConstraint(Sketcher.Constraint("DistanceY", -1, 1, 2, 3, Q("22 mm")))
sketch4.addConstraint(Sketcher.Constraint("DistanceY", -1, 1, 6, 3, Q("33 mm")))
sketch4.addConstraint(Sketcher.Constraint("DistanceX", 10, 3, -1, 1, Q("80 mm")))
sketch4.addConstraint(Sketcher.Constraint("DistanceY", -1, 1, 11, 3, Q("15 mm")))
sketch4.addConstraint(Sketcher.Constraint("DistanceY", -1, 1, 12, 3, Q("30 mm")))
sketch4.addConstraint(Sketcher.Constraint("DistanceX", 3, 3, 2, 3, Q("33 mm")))
sketch4.addConstraint(Sketcher.Constraint("DistanceX", 3, 3, 4, 3, Q("11 mm")))
sketch4.addConstraint(Sketcher.Constraint("DistanceX", 5, 3, 2, 3, Q("11 mm")))
sketch4.addConstraint(Sketcher.Constraint("DistanceY", 37, 3, 36, 3, Q("15 mm")))
sketch4.addConstraint(Sketcher.Constraint("DistanceY", 1, 3, 0, 3, Q("66.5 mm")))
sketch4.addConstraint(Sketcher.Constraint("DistanceX", -1, 1, 0, 3, Q("78.044 mm")))
sketch4.addConstraint(Sketcher.Constraint("DistanceX", 2, 3, -1, 1, Q("31.8198 mm")))
sketch4.addConstraint(Sketcher.Constraint("DistanceX", 36, 3, -1, 1, Q("91.0115 mm")))
sketch4.setExpression("Constraints[81]", "Params.sketch4_diameter")
doc.recompute()
hole = body.newObject("PartDesign::Hole", "Hole")
hole.Profile = sketch4
hole.ThreadType = "None"
hole.setExpression("Diameter", "Params.hole_diameter")
hole.DepthType = "ThroughAll"
hole.Reversed = True

doc.recompute()
